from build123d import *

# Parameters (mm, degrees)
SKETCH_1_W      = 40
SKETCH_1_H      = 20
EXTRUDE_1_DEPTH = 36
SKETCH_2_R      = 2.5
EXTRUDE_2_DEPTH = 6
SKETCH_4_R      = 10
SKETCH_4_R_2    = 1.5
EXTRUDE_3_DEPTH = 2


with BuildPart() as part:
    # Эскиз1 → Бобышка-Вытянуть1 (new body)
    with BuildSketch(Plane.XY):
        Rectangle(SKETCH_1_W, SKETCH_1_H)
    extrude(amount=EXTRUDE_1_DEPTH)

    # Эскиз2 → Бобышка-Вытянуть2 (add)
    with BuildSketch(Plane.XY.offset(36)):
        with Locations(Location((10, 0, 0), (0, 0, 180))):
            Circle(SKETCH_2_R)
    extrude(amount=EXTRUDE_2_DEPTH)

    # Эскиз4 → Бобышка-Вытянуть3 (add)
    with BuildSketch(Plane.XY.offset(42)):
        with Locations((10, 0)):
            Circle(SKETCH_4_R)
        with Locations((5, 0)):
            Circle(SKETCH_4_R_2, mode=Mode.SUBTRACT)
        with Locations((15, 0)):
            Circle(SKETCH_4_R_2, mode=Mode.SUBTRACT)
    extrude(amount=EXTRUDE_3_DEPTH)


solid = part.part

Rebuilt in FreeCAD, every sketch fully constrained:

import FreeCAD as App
import Part
import Sketcher
from FreeCAD import Vector
Q = App.Units.Quantity


def add_polygon(sketch, points):
    """Adds a closed chain of lines whose ends are joined by coincident constraints."""
    first, n = sketch.GeometryCount, len(points)
    for a, b in zip(points, points[1:] + points[:1]):
        sketch.addGeometry(Part.LineSegment(App.Vector(*a, 0), App.Vector(*b, 0)), False)
    for i in range(n):
        sketch.addConstraint(Sketcher.Constraint("Coincident", first + i, 2, first + (i + 1) % n, 1))

doc = App.newDocument("Part")
body = doc.addObject("PartDesign::Body", "Body")

# Sketch on XY plane
sketch1 = body.newObject("Sketcher::SketchObject", "Sketch")
sketch1.AttachmentSupport = (doc.getObject("XY_Plane"), [""])
sketch1.MapMode = "FlatFace"
add_polygon(sketch1, [(-20, 10), (-20, -10), (20, -10), (20, 10)])  # lines 0-3
sketch1.addConstraint([
    Sketcher.Constraint("Vertical", 0),
    Sketcher.Constraint("Horizontal", 1),
    Sketcher.Constraint("Vertical", 2),
    Sketcher.Constraint("Horizontal", 3),
    Sketcher.Constraint("Symmetric", 0, 2, 2, 2, -1, 1),
    Sketcher.Constraint("DistanceX", 1, 1, 1, 2, Q("40 mm")),
    Sketcher.Constraint("DistanceY", 0, 2, 0, 1, Q("20 mm")),
])
pad1 = body.newObject("PartDesign::Pad", "Pad")
pad1.Profile = sketch1
pad1.Length = 36

# Sketch on XY plane
sketch2 = body.newObject("Sketcher::SketchObject", "Sketch001")
sketch2.AttachmentSupport = (doc.getObject("XY_Plane"), [""])
sketch2.MapMode = "FlatFace"
sketch2.AttachmentOffset = App.Placement(Vector(0, 0, 36), App.Rotation())
sketch2.addGeometry(Part.Circle(Vector(10, 0, 0), Vector(0, 0, 1), 2.5), False)
sketch2.addConstraint([
    Sketcher.Constraint("PointOnObject", 0, 3, -1),
    Sketcher.Constraint("Diameter", 0, Q("5 mm")),
    Sketcher.Constraint("DistanceX", -1, 1, 0, 3, Q("10 mm")),
])
pad2 = body.newObject("PartDesign::Pad", "Pad001")
pad2.Profile = sketch2
pad2.Length = 6

# Sketch on XY plane
sketch3 = body.newObject("Sketcher::SketchObject", "Sketch002")
sketch3.AttachmentSupport = (doc.getObject("XY_Plane"), [""])
sketch3.MapMode = "FlatFace"
sketch3.AttachmentOffset = App.Placement(Vector(0, 0, 42), App.Rotation())
sketch3.addGeometry([
    Part.Circle(Vector(10, 0, 0), Vector(0, 0, 1), 10),
    Part.Circle(Vector(5, 0, 0), Vector(0, 0, 1), 1.5),
    Part.Circle(Vector(15, 0, 0), Vector(0, 0, 1), 1.5),
], False)
sketch3.addConstraint([
    Sketcher.Constraint("Equal", 1, 2),
    Sketcher.Constraint("PointOnObject", 0, 3, -1),
    Sketcher.Constraint("PointOnObject", 1, 3, -1),
    Sketcher.Constraint("PointOnObject", 2, 3, -1),
    Sketcher.Constraint("Diameter", 0, Q("20 mm")),
    Sketcher.Constraint("Diameter", 1, Q("3 mm")),
    Sketcher.Constraint("DistanceX", -1, 1, 0, 3, Q("10 mm")),
    Sketcher.Constraint("DistanceX", -1, 1, 1, 3, Q("5 mm")),
    Sketcher.Constraint("DistanceX", -1, 1, 2, 3, Q("15 mm")),
])
pad3 = body.newObject("PartDesign::Pad", "Pad002")
pad3.Profile = sketch3
pad3.Length = 2

doc.recompute()
